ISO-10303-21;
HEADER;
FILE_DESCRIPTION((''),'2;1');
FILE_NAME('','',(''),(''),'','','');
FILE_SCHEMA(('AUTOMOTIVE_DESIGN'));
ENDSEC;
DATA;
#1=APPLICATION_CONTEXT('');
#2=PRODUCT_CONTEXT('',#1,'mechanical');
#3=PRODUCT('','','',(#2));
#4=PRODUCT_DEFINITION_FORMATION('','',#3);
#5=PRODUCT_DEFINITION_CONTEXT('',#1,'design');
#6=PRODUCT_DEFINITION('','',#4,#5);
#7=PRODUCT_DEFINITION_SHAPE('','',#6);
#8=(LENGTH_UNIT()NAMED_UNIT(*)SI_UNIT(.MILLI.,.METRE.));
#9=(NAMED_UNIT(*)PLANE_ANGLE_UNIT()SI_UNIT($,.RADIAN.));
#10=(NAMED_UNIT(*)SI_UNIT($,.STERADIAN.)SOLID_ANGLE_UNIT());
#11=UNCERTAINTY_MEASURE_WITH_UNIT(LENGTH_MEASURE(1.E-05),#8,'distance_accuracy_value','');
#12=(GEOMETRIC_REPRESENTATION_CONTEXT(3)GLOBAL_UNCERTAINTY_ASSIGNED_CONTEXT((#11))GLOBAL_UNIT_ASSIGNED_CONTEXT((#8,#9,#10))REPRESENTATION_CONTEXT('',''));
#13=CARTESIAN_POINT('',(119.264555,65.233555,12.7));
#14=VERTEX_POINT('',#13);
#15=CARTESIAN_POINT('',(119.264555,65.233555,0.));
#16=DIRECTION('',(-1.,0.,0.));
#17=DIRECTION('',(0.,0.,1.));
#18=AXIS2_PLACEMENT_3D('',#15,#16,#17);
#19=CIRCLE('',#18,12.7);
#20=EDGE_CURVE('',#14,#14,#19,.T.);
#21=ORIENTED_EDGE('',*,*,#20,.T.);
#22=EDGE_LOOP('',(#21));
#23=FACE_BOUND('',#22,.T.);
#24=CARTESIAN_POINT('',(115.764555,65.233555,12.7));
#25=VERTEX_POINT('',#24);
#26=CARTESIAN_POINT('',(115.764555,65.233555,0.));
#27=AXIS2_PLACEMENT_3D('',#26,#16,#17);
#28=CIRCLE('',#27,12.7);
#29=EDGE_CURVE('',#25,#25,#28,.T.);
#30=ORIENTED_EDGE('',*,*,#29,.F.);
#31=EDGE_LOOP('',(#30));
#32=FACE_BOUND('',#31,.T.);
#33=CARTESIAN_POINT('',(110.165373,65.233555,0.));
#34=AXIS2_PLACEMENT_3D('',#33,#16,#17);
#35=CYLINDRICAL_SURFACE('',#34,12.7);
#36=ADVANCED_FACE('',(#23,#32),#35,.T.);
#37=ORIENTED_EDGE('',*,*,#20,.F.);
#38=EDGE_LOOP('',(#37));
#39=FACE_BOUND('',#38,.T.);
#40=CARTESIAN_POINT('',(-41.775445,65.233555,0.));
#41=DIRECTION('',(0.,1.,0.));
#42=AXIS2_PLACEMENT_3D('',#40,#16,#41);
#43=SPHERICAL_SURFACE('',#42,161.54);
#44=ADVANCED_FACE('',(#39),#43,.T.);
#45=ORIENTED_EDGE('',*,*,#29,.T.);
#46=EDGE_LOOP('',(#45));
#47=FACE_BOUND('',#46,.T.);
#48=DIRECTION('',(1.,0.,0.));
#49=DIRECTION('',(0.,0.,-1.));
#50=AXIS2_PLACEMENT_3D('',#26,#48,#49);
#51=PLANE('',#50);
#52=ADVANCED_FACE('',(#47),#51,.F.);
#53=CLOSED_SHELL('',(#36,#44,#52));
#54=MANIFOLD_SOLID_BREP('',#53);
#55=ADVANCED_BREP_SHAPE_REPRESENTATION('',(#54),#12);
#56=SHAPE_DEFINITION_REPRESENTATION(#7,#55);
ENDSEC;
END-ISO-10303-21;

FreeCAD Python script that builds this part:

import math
import FreeCAD as App
import Part
import Sketcher

V = App.Vector
Q = App.Units.Quantity

doc = App.newDocument("Part")
body = doc.addObject("PartDesign::Body", "Body")

# Sketch on XY plane
sketch1 = doc.addObject("Sketcher::SketchObject", "Sketch")
body.addObject(sketch1)
sketch1.AttachmentSupport = (doc.XY_Plane, [""])
sketch1.MapMode = "FlatFace"
sketch1.addGeometry([
    Part.LineSegment(V(115.8, 77.9, 0), V(115.8, 65.2, 0)),
    Part.LineSegment(V(115.8, 65.2, 0), V(119.8, 65.2, 0)),
    Part.ArcOfCircle(Part.Circle(V(-41.8, 65.2, 0), V(0, 0, 1), 161.5), math.radians(0), math.radians(4.51)),
    Part.LineSegment(V(119.3, 77.9, 0), V(115.8, 77.9, 0)),
], False)
sketch1.addGeometry(Part.LineSegment(V(-41.8, 65.2, 0), V(119.8, 65.2, 0)), True)  # axis
sketch1.addConstraint([
    Sketcher.Constraint("Coincident", 0, 2, 1, 1),
    Sketcher.Constraint("Coincident", 1, 2, 2, 1),
    Sketcher.Constraint("Coincident", 2, 2, 3, 1),
    Sketcher.Constraint("Coincident", 3, 2, 0, 1),
    Sketcher.Constraint("Vertical", 0),
    Sketcher.Constraint("Horizontal", 1),
    Sketcher.Constraint("Horizontal", 3),
    Sketcher.Constraint("Horizontal", 4),
    Sketcher.Constraint("Coincident", 4, 1, 2, 3),
    Sketcher.Constraint("Coincident", 4, 2, 1, 2),
    Sketcher.Constraint("DistanceX", 1, 1, 1, 2, Q("4 mm")),
    Sketcher.Constraint("Radius", 2, Q("161.54 mm")),
    Sketcher.Constraint("DistanceX", 3, 2, 3, 1, Q("3.5 mm")),
    Sketcher.Constraint("DistanceX", 2, 3, -1, 1, Q("41.775444 mm")),
    Sketcher.Constraint("DistanceY", -1, 1, 2, 3, Q("65.233555 mm")),
])
revolution = doc.addObject("PartDesign::Revolution", "Revolution")
body.addObject(revolution)
revolution.Profile = sketch1
revolution.ReferenceAxis = (sketch1, ["Axis0"])
revolution.Angle = 360

doc.recompute()
